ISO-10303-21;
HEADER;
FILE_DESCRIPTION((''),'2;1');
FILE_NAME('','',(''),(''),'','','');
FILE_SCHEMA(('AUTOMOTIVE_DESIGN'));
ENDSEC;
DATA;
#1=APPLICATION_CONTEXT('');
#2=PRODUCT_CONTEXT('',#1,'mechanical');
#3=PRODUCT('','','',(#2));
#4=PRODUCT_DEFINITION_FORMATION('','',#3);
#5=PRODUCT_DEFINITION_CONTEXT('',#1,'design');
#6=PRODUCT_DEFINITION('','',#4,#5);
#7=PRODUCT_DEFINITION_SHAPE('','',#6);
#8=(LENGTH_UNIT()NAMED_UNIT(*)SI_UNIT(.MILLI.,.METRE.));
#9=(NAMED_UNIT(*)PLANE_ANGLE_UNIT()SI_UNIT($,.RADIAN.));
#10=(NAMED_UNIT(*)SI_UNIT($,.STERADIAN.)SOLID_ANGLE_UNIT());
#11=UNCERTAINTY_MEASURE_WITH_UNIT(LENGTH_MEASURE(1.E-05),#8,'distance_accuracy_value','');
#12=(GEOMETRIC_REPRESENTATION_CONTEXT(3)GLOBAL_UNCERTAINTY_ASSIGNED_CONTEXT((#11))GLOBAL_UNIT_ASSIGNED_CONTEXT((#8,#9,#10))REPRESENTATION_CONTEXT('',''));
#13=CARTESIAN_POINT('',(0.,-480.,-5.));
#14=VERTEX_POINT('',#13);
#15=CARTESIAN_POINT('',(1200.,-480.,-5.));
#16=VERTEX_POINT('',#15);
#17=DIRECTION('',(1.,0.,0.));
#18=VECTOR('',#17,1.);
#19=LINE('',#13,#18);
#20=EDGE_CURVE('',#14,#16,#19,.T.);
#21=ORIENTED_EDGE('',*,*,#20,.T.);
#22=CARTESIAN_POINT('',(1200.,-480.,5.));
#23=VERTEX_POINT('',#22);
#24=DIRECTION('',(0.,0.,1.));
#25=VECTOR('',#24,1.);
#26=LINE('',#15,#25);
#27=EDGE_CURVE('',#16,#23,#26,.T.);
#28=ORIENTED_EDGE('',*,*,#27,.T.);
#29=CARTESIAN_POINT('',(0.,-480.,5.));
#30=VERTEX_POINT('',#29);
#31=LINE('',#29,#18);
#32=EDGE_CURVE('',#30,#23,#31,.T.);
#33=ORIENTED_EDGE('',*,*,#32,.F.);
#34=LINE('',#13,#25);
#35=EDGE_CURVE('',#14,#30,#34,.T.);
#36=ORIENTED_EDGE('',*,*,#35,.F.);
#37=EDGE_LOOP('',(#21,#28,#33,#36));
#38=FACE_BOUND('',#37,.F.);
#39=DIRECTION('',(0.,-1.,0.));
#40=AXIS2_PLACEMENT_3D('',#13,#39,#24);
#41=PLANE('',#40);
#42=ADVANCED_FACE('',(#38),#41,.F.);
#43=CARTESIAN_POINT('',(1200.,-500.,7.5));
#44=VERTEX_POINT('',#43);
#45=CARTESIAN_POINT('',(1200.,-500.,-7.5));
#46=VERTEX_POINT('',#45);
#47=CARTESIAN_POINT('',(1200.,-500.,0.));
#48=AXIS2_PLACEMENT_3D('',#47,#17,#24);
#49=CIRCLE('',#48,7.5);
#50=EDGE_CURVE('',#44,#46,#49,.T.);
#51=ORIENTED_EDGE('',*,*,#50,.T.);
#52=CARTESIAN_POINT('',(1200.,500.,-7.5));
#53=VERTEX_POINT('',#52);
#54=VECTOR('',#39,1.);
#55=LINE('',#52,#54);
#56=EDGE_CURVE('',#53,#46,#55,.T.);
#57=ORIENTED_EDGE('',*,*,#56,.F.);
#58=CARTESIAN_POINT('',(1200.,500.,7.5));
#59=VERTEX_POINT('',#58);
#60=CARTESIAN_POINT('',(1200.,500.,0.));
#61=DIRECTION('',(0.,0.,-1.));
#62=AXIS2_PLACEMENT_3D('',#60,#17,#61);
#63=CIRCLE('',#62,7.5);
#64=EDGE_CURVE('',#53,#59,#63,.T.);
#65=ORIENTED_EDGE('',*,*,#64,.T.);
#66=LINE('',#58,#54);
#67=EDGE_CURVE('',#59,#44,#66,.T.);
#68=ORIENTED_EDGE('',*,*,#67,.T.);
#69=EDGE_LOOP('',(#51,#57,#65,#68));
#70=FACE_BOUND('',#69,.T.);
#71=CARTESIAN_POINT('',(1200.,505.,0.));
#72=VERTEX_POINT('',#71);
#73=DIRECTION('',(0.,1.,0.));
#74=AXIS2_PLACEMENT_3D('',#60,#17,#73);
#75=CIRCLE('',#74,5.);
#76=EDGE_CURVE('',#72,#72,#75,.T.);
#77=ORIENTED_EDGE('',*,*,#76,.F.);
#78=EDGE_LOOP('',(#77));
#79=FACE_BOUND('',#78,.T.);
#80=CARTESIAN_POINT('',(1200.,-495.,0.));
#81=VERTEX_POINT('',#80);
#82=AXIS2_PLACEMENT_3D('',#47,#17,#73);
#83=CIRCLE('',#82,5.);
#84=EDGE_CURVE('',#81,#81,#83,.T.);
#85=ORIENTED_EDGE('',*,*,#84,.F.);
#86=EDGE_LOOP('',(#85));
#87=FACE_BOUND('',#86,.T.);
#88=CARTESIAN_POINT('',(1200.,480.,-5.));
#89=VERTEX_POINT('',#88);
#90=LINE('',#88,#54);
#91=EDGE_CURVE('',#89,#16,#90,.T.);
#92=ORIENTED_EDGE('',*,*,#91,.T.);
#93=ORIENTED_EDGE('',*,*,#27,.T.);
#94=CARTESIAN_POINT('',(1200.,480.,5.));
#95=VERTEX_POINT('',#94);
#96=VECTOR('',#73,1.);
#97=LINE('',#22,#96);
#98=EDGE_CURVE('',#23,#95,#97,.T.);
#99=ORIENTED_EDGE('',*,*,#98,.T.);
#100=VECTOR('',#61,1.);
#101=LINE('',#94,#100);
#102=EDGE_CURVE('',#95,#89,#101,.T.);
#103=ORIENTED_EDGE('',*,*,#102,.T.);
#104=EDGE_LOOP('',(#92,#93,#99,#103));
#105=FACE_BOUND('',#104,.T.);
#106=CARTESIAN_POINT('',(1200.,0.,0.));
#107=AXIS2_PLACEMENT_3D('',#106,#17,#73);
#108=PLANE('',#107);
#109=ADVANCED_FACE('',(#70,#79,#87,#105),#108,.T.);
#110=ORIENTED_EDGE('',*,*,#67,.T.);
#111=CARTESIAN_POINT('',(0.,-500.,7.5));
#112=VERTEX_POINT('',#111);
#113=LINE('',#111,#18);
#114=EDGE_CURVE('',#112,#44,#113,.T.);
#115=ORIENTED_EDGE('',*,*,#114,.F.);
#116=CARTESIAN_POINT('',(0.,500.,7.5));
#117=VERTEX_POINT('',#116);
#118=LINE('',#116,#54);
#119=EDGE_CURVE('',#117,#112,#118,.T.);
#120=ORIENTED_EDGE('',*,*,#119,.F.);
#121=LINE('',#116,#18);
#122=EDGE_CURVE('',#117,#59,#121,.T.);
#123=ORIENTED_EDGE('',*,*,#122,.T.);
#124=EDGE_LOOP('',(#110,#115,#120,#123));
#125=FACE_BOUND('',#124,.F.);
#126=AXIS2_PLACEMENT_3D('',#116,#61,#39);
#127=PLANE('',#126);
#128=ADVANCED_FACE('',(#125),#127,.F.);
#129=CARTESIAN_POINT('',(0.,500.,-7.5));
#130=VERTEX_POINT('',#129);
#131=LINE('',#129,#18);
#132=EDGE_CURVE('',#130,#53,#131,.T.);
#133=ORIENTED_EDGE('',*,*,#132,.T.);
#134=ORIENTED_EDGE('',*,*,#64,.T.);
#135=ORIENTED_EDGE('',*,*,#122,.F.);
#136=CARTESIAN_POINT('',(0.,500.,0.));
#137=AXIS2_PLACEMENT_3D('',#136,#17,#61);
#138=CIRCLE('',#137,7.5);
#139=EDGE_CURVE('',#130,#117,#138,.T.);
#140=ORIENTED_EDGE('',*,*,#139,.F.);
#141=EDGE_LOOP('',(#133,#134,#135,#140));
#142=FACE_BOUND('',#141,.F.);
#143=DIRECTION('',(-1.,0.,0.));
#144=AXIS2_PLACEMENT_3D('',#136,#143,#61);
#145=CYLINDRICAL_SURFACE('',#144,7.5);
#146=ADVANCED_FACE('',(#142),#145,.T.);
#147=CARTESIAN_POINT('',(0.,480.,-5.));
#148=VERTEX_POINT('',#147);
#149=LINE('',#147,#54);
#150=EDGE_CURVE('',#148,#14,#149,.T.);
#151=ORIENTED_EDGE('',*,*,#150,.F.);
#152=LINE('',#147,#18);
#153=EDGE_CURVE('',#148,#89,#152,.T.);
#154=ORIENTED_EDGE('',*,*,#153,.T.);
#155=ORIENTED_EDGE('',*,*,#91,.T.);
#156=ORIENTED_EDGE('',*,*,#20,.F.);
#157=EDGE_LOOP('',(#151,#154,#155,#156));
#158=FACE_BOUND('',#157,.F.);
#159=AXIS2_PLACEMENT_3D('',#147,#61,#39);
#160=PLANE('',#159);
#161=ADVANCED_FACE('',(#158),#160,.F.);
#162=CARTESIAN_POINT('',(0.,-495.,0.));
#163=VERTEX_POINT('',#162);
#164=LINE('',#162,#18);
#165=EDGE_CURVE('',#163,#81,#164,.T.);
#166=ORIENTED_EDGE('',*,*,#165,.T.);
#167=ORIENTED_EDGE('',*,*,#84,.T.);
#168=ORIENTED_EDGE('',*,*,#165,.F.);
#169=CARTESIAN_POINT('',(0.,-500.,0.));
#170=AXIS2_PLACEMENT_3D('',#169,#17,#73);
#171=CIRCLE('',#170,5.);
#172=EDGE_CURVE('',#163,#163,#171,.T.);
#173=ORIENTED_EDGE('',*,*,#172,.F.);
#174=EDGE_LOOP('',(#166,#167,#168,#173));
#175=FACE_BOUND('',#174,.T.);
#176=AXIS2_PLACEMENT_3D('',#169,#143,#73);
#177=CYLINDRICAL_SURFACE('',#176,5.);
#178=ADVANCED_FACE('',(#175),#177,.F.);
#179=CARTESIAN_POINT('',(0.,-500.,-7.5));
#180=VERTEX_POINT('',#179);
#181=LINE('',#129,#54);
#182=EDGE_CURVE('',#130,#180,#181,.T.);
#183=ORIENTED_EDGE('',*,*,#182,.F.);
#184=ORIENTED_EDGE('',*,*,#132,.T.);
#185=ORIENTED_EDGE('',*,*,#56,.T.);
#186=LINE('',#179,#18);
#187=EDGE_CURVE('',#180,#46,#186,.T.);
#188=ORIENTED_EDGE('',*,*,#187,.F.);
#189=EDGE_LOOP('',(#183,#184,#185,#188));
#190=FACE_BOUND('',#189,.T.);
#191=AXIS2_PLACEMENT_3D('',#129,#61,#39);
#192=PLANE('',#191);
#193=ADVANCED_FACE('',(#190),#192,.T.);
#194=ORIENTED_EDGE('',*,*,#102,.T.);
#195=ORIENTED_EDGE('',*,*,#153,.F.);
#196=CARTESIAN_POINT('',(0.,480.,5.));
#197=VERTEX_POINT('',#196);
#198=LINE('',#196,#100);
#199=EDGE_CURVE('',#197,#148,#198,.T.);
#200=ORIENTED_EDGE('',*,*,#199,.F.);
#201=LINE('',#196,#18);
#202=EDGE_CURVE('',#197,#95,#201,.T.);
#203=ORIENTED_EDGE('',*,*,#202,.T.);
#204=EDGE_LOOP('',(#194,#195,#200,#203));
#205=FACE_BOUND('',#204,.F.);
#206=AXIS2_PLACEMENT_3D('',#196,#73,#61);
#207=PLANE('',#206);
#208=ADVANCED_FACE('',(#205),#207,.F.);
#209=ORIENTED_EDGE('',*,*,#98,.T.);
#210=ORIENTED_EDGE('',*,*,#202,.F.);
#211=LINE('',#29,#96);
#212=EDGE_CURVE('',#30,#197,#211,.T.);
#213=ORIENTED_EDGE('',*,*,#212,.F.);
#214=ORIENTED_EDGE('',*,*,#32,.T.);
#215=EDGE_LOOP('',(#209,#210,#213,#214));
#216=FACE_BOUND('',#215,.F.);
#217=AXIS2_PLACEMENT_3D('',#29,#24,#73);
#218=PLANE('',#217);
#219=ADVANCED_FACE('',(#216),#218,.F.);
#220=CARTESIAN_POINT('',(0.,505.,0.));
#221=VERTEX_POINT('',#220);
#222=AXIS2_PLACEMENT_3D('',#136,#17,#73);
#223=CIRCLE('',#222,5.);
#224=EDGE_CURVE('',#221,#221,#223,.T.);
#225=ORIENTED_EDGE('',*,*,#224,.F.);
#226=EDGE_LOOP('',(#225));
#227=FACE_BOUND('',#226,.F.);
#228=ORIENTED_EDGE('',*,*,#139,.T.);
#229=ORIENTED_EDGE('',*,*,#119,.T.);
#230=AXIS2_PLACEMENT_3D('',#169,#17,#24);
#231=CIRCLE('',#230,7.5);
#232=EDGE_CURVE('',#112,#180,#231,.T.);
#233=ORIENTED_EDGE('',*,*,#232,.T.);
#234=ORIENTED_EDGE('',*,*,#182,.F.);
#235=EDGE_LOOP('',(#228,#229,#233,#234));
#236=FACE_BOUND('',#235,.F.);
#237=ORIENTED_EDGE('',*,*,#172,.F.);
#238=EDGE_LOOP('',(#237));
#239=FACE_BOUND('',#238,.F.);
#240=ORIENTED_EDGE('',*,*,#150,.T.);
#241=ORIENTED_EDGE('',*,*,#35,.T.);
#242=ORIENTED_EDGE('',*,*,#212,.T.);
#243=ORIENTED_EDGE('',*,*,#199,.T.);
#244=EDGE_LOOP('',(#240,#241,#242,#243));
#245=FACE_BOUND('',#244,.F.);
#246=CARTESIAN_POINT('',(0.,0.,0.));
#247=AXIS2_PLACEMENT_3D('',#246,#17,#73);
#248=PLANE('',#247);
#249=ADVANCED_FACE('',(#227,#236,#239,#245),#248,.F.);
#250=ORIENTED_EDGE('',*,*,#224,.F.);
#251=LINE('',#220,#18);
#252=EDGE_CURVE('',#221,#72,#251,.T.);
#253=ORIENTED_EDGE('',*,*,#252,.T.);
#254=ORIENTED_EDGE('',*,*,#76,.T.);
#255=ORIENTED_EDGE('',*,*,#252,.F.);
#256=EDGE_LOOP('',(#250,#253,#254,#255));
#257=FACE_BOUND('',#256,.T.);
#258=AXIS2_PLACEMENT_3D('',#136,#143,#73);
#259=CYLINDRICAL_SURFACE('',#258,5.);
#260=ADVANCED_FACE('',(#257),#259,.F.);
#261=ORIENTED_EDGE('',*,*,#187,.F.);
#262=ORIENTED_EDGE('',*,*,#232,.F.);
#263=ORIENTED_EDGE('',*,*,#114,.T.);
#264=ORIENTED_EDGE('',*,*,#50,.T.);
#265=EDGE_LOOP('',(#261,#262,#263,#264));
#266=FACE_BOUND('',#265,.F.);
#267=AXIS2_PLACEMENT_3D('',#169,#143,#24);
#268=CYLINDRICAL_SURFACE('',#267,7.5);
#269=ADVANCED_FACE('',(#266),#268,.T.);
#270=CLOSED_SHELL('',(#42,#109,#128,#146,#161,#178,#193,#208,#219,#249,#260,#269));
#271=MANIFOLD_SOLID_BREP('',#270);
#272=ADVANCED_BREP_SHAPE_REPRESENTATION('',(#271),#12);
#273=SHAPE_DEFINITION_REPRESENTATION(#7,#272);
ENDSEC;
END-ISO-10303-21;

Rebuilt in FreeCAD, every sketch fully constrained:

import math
import FreeCAD as App
import Part
import Sketcher
from FreeCAD import Vector

doc = App.newDocument("Part")
body = doc.addObject("PartDesign::Body", "Body")

# Sketch on YZ plane
sketch1 = doc.addObject("Sketcher::SketchObject", "Sketch")
body.addObject(sketch1)
sketch1.AttachmentSupport = (doc.YZ_Plane, [""])
sketch1.MapMode = "FlatFace"
sketch1.addGeometry([
    Part.LineSegment(Vector(-500, -8, 0), Vector(500, -8, 0)),  # 0
    Part.ArcOfCircle(Part.Circle(Vector(500, 0, 0), Vector(0, 0, 1), 8), math.radians(-90), math.radians(90)),  # 1
    Part.LineSegment(Vector(500, 8, 0), Vector(-500, 8, 0)),  # 2
    Part.ArcOfCircle(Part.Circle(Vector(-500, 0, 0), Vector(0, 0, 1), 8), math.radians(90), math.radians(270)),  # 3
    Part.Circle(Vector(-500, 0, 0), Vector(0, 0, 1), 5),  # 4
    Part.LineSegment(Vector(-480, -5, 0), Vector(-480, 5, 0)),  # 5
    Part.LineSegment(Vector(-480, 5, 0), Vector(480, 5, 0)),  # 6
    Part.LineSegment(Vector(480, 5, 0), Vector(480, -5, 0)),  # 7
    Part.LineSegment(Vector(480, -5, 0), Vector(-480, -5, 0)),  # 8
    Part.Circle(Vector(500, 0, 0), Vector(0, 0, 1), 5),  # 9
], False)
sketch1.addConstraint([
    Sketcher.Constraint("Tangent", 0, 2, 1, 1),
    Sketcher.Constraint("Tangent", 1, 2, 2, 1),
    Sketcher.Constraint("Tangent", 2, 2, 3, 1),
    Sketcher.Constraint("Tangent", 3, 2, 0, 1),
    Sketcher.Constraint("Coincident", 5, 2, 6, 1),
    Sketcher.Constraint("Coincident", 6, 2, 7, 1),
    Sketcher.Constraint("Coincident", 7, 2, 8, 1),
    Sketcher.Constraint("Coincident", 8, 2, 5, 1),
    Sketcher.Constraint("Horizontal", 0),
    Sketcher.Constraint("Horizontal", 2),
    Sketcher.Constraint("Vertical", 5),
    Sketcher.Constraint("Horizontal", 6),
    Sketcher.Constraint("Vertical", 7),
    Sketcher.Constraint("Horizontal", 8),
    Sketcher.Constraint("Coincident", 4, 3, 3, 3),
    Sketcher.Constraint("Coincident", 9, 3, 1, 3),
    Sketcher.Constraint("Equal", 4, 9),
    Sketcher.Constraint("Symmetric", 1, 3, 3, 3, -1, 1),
    Sketcher.Constraint("Symmetric", 5, 2, 7, 2, -1, 1),
    Sketcher.Constraint("Diameter", 4, 10.0),
    Sketcher.Constraint("Radius", 1, 7.5),
    Sketcher.Constraint("DistanceX", 0, 1, 0, 2, 1000.0),
    Sketcher.Constraint("DistanceX", 6, 1, 6, 2, 960.0),
    Sketcher.Constraint("DistanceY", 5, 1, 5, 2, 10.0),
])
pad1 = doc.addObject("PartDesign::Pad", "Pad")
body.addObject(pad1)
pad1.Profile = sketch1
pad1.Length = 1200

doc.recompute()
